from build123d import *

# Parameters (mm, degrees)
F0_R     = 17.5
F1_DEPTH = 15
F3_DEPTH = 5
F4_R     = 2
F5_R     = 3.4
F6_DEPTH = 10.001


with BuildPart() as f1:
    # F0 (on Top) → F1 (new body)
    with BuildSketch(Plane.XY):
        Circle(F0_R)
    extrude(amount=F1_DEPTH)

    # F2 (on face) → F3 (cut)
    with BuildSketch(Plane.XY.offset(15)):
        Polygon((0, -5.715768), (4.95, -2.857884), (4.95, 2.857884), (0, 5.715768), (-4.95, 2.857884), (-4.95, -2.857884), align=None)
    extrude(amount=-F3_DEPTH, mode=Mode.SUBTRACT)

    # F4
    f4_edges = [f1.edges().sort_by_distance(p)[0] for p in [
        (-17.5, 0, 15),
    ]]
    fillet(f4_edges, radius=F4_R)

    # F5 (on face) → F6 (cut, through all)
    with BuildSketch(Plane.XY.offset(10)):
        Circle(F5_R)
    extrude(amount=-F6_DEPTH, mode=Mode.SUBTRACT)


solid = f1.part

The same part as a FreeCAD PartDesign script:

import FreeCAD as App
import Part
import Sketcher

V = App.Vector
Q = App.Units.Quantity


def edges_at(feature, points):
    """Names of the edges that pass closest to the given points."""
    edges = feature.Shape.Edges
    near = lambda p: min(range(len(edges)), key=lambda i: edges[i].distToShape(Part.Vertex(*p))[0])
    return sorted({f"Edge{near(p) + 1}" for p in points})


def add_polygon(sketch, points):
    """Adds a closed chain of lines whose ends are joined by coincident constraints."""
    first, n = sketch.GeometryCount, len(points)
    for a, b in zip(points, points[1:] + points[:1]):
        sketch.addGeometry(Part.LineSegment(App.Vector(*a, 0), App.Vector(*b, 0)), False)
    for i in range(n):
        sketch.addConstraint(Sketcher.Constraint("Coincident", first + i, 2, first + (i + 1) % n, 1))

doc = App.newDocument("Part")
body = doc.addObject("PartDesign::Body", "Body")

# Sketch on XY plane
sketch1 = body.newObject("Sketcher::SketchObject", "Sketch")
sketch1.AttachmentSupport = (doc.getObject("XY_Plane"), [""])
sketch1.MapMode = "FlatFace"
sketch1.addGeometry(Part.Circle(V(0, 0, 0), V(0, 0, 1), 18), False)
sketch1.addConstraint(Sketcher.Constraint("Coincident", 0, 3, -1, 1))
sketch1.addConstraint(Sketcher.Constraint("Diameter", 0, 35.0))
pad1 = body.newObject("PartDesign::Pad", "Pad")
pad1.Profile = sketch1
pad1.Length = 15

# Sketch on XY plane
sketch2 = body.newObject("Sketcher::SketchObject", "Sketch001")
sketch2.AttachmentSupport = (doc.getObject("XY_Plane"), [""])
sketch2.MapMode = "FlatFace"
sketch2.AttachmentOffset = App.Placement(V(0, 0, 15), App.Rotation())
add_polygon(sketch2, [(0, -6), (5, -3), (5, 3), (0, 6), (-5, 3), (-5, -3)])  # lines 0-5
sketch2.addConstraint(Sketcher.Constraint("Vertical", 1))
sketch2.addConstraint(Sketcher.Constraint("Vertical", 4))
sketch2.addConstraint(Sketcher.Constraint("Symmetric", 0, 2, 3, 2, -1, 1))
sketch2.addConstraint(Sketcher.Constraint("Symmetric", 2, 2, 5, 2, -1, 1))
sketch2.addConstraint(Sketcher.Constraint("PointOnObject", 2, 2, -2))
sketch2.addConstraint(Sketcher.Constraint("Parallel", 2, 5))
sketch2.addConstraint(Sketcher.Constraint("Horizontal", 1, 2, 3, 2))
sketch2.addConstraint(Sketcher.Constraint("Angle", 0, Q("30.000001 deg")))
sketch2.addConstraint(Sketcher.Constraint("DistanceX", 3, 2, 1, 2, 9.9))
sketch2.addConstraint(Sketcher.Constraint("DistanceY", 1, 1, 1, 2, 5.715768))
pocket1 = body.newObject("PartDesign::Pocket", "Pocket")
pocket1.Profile = sketch2
pocket1.Length = 5
doc.recompute()

fillet = body.newObject("PartDesign::Fillet", "Fillet")
fillet.Base = (pocket1, edges_at(pocket1, [(-17.5, 0, 15)]))
fillet.Radius = 2

# Sketch on XY plane
sketch3 = body.newObject("Sketcher::SketchObject", "Sketch002")
sketch3.AttachmentSupport = (doc.getObject("XY_Plane"), [""])
sketch3.MapMode = "FlatFace"
sketch3.AttachmentOffset = App.Placement(V(0, 0, 10), App.Rotation())
sketch3.addGeometry(Part.Circle(V(0, 0, 0), V(0, 0, 1), 3.4), False)
sketch3.addConstraint(Sketcher.Constraint("Coincident", 0, 3, -1, 1))
sketch3.addConstraint(Sketcher.Constraint("Diameter", 0, 6.8))
pocket2 = body.newObject("PartDesign::Pocket", "Pocket001")
pocket2.Profile = sketch3
pocket2.Type = "ThroughAll"

doc.recompute()
